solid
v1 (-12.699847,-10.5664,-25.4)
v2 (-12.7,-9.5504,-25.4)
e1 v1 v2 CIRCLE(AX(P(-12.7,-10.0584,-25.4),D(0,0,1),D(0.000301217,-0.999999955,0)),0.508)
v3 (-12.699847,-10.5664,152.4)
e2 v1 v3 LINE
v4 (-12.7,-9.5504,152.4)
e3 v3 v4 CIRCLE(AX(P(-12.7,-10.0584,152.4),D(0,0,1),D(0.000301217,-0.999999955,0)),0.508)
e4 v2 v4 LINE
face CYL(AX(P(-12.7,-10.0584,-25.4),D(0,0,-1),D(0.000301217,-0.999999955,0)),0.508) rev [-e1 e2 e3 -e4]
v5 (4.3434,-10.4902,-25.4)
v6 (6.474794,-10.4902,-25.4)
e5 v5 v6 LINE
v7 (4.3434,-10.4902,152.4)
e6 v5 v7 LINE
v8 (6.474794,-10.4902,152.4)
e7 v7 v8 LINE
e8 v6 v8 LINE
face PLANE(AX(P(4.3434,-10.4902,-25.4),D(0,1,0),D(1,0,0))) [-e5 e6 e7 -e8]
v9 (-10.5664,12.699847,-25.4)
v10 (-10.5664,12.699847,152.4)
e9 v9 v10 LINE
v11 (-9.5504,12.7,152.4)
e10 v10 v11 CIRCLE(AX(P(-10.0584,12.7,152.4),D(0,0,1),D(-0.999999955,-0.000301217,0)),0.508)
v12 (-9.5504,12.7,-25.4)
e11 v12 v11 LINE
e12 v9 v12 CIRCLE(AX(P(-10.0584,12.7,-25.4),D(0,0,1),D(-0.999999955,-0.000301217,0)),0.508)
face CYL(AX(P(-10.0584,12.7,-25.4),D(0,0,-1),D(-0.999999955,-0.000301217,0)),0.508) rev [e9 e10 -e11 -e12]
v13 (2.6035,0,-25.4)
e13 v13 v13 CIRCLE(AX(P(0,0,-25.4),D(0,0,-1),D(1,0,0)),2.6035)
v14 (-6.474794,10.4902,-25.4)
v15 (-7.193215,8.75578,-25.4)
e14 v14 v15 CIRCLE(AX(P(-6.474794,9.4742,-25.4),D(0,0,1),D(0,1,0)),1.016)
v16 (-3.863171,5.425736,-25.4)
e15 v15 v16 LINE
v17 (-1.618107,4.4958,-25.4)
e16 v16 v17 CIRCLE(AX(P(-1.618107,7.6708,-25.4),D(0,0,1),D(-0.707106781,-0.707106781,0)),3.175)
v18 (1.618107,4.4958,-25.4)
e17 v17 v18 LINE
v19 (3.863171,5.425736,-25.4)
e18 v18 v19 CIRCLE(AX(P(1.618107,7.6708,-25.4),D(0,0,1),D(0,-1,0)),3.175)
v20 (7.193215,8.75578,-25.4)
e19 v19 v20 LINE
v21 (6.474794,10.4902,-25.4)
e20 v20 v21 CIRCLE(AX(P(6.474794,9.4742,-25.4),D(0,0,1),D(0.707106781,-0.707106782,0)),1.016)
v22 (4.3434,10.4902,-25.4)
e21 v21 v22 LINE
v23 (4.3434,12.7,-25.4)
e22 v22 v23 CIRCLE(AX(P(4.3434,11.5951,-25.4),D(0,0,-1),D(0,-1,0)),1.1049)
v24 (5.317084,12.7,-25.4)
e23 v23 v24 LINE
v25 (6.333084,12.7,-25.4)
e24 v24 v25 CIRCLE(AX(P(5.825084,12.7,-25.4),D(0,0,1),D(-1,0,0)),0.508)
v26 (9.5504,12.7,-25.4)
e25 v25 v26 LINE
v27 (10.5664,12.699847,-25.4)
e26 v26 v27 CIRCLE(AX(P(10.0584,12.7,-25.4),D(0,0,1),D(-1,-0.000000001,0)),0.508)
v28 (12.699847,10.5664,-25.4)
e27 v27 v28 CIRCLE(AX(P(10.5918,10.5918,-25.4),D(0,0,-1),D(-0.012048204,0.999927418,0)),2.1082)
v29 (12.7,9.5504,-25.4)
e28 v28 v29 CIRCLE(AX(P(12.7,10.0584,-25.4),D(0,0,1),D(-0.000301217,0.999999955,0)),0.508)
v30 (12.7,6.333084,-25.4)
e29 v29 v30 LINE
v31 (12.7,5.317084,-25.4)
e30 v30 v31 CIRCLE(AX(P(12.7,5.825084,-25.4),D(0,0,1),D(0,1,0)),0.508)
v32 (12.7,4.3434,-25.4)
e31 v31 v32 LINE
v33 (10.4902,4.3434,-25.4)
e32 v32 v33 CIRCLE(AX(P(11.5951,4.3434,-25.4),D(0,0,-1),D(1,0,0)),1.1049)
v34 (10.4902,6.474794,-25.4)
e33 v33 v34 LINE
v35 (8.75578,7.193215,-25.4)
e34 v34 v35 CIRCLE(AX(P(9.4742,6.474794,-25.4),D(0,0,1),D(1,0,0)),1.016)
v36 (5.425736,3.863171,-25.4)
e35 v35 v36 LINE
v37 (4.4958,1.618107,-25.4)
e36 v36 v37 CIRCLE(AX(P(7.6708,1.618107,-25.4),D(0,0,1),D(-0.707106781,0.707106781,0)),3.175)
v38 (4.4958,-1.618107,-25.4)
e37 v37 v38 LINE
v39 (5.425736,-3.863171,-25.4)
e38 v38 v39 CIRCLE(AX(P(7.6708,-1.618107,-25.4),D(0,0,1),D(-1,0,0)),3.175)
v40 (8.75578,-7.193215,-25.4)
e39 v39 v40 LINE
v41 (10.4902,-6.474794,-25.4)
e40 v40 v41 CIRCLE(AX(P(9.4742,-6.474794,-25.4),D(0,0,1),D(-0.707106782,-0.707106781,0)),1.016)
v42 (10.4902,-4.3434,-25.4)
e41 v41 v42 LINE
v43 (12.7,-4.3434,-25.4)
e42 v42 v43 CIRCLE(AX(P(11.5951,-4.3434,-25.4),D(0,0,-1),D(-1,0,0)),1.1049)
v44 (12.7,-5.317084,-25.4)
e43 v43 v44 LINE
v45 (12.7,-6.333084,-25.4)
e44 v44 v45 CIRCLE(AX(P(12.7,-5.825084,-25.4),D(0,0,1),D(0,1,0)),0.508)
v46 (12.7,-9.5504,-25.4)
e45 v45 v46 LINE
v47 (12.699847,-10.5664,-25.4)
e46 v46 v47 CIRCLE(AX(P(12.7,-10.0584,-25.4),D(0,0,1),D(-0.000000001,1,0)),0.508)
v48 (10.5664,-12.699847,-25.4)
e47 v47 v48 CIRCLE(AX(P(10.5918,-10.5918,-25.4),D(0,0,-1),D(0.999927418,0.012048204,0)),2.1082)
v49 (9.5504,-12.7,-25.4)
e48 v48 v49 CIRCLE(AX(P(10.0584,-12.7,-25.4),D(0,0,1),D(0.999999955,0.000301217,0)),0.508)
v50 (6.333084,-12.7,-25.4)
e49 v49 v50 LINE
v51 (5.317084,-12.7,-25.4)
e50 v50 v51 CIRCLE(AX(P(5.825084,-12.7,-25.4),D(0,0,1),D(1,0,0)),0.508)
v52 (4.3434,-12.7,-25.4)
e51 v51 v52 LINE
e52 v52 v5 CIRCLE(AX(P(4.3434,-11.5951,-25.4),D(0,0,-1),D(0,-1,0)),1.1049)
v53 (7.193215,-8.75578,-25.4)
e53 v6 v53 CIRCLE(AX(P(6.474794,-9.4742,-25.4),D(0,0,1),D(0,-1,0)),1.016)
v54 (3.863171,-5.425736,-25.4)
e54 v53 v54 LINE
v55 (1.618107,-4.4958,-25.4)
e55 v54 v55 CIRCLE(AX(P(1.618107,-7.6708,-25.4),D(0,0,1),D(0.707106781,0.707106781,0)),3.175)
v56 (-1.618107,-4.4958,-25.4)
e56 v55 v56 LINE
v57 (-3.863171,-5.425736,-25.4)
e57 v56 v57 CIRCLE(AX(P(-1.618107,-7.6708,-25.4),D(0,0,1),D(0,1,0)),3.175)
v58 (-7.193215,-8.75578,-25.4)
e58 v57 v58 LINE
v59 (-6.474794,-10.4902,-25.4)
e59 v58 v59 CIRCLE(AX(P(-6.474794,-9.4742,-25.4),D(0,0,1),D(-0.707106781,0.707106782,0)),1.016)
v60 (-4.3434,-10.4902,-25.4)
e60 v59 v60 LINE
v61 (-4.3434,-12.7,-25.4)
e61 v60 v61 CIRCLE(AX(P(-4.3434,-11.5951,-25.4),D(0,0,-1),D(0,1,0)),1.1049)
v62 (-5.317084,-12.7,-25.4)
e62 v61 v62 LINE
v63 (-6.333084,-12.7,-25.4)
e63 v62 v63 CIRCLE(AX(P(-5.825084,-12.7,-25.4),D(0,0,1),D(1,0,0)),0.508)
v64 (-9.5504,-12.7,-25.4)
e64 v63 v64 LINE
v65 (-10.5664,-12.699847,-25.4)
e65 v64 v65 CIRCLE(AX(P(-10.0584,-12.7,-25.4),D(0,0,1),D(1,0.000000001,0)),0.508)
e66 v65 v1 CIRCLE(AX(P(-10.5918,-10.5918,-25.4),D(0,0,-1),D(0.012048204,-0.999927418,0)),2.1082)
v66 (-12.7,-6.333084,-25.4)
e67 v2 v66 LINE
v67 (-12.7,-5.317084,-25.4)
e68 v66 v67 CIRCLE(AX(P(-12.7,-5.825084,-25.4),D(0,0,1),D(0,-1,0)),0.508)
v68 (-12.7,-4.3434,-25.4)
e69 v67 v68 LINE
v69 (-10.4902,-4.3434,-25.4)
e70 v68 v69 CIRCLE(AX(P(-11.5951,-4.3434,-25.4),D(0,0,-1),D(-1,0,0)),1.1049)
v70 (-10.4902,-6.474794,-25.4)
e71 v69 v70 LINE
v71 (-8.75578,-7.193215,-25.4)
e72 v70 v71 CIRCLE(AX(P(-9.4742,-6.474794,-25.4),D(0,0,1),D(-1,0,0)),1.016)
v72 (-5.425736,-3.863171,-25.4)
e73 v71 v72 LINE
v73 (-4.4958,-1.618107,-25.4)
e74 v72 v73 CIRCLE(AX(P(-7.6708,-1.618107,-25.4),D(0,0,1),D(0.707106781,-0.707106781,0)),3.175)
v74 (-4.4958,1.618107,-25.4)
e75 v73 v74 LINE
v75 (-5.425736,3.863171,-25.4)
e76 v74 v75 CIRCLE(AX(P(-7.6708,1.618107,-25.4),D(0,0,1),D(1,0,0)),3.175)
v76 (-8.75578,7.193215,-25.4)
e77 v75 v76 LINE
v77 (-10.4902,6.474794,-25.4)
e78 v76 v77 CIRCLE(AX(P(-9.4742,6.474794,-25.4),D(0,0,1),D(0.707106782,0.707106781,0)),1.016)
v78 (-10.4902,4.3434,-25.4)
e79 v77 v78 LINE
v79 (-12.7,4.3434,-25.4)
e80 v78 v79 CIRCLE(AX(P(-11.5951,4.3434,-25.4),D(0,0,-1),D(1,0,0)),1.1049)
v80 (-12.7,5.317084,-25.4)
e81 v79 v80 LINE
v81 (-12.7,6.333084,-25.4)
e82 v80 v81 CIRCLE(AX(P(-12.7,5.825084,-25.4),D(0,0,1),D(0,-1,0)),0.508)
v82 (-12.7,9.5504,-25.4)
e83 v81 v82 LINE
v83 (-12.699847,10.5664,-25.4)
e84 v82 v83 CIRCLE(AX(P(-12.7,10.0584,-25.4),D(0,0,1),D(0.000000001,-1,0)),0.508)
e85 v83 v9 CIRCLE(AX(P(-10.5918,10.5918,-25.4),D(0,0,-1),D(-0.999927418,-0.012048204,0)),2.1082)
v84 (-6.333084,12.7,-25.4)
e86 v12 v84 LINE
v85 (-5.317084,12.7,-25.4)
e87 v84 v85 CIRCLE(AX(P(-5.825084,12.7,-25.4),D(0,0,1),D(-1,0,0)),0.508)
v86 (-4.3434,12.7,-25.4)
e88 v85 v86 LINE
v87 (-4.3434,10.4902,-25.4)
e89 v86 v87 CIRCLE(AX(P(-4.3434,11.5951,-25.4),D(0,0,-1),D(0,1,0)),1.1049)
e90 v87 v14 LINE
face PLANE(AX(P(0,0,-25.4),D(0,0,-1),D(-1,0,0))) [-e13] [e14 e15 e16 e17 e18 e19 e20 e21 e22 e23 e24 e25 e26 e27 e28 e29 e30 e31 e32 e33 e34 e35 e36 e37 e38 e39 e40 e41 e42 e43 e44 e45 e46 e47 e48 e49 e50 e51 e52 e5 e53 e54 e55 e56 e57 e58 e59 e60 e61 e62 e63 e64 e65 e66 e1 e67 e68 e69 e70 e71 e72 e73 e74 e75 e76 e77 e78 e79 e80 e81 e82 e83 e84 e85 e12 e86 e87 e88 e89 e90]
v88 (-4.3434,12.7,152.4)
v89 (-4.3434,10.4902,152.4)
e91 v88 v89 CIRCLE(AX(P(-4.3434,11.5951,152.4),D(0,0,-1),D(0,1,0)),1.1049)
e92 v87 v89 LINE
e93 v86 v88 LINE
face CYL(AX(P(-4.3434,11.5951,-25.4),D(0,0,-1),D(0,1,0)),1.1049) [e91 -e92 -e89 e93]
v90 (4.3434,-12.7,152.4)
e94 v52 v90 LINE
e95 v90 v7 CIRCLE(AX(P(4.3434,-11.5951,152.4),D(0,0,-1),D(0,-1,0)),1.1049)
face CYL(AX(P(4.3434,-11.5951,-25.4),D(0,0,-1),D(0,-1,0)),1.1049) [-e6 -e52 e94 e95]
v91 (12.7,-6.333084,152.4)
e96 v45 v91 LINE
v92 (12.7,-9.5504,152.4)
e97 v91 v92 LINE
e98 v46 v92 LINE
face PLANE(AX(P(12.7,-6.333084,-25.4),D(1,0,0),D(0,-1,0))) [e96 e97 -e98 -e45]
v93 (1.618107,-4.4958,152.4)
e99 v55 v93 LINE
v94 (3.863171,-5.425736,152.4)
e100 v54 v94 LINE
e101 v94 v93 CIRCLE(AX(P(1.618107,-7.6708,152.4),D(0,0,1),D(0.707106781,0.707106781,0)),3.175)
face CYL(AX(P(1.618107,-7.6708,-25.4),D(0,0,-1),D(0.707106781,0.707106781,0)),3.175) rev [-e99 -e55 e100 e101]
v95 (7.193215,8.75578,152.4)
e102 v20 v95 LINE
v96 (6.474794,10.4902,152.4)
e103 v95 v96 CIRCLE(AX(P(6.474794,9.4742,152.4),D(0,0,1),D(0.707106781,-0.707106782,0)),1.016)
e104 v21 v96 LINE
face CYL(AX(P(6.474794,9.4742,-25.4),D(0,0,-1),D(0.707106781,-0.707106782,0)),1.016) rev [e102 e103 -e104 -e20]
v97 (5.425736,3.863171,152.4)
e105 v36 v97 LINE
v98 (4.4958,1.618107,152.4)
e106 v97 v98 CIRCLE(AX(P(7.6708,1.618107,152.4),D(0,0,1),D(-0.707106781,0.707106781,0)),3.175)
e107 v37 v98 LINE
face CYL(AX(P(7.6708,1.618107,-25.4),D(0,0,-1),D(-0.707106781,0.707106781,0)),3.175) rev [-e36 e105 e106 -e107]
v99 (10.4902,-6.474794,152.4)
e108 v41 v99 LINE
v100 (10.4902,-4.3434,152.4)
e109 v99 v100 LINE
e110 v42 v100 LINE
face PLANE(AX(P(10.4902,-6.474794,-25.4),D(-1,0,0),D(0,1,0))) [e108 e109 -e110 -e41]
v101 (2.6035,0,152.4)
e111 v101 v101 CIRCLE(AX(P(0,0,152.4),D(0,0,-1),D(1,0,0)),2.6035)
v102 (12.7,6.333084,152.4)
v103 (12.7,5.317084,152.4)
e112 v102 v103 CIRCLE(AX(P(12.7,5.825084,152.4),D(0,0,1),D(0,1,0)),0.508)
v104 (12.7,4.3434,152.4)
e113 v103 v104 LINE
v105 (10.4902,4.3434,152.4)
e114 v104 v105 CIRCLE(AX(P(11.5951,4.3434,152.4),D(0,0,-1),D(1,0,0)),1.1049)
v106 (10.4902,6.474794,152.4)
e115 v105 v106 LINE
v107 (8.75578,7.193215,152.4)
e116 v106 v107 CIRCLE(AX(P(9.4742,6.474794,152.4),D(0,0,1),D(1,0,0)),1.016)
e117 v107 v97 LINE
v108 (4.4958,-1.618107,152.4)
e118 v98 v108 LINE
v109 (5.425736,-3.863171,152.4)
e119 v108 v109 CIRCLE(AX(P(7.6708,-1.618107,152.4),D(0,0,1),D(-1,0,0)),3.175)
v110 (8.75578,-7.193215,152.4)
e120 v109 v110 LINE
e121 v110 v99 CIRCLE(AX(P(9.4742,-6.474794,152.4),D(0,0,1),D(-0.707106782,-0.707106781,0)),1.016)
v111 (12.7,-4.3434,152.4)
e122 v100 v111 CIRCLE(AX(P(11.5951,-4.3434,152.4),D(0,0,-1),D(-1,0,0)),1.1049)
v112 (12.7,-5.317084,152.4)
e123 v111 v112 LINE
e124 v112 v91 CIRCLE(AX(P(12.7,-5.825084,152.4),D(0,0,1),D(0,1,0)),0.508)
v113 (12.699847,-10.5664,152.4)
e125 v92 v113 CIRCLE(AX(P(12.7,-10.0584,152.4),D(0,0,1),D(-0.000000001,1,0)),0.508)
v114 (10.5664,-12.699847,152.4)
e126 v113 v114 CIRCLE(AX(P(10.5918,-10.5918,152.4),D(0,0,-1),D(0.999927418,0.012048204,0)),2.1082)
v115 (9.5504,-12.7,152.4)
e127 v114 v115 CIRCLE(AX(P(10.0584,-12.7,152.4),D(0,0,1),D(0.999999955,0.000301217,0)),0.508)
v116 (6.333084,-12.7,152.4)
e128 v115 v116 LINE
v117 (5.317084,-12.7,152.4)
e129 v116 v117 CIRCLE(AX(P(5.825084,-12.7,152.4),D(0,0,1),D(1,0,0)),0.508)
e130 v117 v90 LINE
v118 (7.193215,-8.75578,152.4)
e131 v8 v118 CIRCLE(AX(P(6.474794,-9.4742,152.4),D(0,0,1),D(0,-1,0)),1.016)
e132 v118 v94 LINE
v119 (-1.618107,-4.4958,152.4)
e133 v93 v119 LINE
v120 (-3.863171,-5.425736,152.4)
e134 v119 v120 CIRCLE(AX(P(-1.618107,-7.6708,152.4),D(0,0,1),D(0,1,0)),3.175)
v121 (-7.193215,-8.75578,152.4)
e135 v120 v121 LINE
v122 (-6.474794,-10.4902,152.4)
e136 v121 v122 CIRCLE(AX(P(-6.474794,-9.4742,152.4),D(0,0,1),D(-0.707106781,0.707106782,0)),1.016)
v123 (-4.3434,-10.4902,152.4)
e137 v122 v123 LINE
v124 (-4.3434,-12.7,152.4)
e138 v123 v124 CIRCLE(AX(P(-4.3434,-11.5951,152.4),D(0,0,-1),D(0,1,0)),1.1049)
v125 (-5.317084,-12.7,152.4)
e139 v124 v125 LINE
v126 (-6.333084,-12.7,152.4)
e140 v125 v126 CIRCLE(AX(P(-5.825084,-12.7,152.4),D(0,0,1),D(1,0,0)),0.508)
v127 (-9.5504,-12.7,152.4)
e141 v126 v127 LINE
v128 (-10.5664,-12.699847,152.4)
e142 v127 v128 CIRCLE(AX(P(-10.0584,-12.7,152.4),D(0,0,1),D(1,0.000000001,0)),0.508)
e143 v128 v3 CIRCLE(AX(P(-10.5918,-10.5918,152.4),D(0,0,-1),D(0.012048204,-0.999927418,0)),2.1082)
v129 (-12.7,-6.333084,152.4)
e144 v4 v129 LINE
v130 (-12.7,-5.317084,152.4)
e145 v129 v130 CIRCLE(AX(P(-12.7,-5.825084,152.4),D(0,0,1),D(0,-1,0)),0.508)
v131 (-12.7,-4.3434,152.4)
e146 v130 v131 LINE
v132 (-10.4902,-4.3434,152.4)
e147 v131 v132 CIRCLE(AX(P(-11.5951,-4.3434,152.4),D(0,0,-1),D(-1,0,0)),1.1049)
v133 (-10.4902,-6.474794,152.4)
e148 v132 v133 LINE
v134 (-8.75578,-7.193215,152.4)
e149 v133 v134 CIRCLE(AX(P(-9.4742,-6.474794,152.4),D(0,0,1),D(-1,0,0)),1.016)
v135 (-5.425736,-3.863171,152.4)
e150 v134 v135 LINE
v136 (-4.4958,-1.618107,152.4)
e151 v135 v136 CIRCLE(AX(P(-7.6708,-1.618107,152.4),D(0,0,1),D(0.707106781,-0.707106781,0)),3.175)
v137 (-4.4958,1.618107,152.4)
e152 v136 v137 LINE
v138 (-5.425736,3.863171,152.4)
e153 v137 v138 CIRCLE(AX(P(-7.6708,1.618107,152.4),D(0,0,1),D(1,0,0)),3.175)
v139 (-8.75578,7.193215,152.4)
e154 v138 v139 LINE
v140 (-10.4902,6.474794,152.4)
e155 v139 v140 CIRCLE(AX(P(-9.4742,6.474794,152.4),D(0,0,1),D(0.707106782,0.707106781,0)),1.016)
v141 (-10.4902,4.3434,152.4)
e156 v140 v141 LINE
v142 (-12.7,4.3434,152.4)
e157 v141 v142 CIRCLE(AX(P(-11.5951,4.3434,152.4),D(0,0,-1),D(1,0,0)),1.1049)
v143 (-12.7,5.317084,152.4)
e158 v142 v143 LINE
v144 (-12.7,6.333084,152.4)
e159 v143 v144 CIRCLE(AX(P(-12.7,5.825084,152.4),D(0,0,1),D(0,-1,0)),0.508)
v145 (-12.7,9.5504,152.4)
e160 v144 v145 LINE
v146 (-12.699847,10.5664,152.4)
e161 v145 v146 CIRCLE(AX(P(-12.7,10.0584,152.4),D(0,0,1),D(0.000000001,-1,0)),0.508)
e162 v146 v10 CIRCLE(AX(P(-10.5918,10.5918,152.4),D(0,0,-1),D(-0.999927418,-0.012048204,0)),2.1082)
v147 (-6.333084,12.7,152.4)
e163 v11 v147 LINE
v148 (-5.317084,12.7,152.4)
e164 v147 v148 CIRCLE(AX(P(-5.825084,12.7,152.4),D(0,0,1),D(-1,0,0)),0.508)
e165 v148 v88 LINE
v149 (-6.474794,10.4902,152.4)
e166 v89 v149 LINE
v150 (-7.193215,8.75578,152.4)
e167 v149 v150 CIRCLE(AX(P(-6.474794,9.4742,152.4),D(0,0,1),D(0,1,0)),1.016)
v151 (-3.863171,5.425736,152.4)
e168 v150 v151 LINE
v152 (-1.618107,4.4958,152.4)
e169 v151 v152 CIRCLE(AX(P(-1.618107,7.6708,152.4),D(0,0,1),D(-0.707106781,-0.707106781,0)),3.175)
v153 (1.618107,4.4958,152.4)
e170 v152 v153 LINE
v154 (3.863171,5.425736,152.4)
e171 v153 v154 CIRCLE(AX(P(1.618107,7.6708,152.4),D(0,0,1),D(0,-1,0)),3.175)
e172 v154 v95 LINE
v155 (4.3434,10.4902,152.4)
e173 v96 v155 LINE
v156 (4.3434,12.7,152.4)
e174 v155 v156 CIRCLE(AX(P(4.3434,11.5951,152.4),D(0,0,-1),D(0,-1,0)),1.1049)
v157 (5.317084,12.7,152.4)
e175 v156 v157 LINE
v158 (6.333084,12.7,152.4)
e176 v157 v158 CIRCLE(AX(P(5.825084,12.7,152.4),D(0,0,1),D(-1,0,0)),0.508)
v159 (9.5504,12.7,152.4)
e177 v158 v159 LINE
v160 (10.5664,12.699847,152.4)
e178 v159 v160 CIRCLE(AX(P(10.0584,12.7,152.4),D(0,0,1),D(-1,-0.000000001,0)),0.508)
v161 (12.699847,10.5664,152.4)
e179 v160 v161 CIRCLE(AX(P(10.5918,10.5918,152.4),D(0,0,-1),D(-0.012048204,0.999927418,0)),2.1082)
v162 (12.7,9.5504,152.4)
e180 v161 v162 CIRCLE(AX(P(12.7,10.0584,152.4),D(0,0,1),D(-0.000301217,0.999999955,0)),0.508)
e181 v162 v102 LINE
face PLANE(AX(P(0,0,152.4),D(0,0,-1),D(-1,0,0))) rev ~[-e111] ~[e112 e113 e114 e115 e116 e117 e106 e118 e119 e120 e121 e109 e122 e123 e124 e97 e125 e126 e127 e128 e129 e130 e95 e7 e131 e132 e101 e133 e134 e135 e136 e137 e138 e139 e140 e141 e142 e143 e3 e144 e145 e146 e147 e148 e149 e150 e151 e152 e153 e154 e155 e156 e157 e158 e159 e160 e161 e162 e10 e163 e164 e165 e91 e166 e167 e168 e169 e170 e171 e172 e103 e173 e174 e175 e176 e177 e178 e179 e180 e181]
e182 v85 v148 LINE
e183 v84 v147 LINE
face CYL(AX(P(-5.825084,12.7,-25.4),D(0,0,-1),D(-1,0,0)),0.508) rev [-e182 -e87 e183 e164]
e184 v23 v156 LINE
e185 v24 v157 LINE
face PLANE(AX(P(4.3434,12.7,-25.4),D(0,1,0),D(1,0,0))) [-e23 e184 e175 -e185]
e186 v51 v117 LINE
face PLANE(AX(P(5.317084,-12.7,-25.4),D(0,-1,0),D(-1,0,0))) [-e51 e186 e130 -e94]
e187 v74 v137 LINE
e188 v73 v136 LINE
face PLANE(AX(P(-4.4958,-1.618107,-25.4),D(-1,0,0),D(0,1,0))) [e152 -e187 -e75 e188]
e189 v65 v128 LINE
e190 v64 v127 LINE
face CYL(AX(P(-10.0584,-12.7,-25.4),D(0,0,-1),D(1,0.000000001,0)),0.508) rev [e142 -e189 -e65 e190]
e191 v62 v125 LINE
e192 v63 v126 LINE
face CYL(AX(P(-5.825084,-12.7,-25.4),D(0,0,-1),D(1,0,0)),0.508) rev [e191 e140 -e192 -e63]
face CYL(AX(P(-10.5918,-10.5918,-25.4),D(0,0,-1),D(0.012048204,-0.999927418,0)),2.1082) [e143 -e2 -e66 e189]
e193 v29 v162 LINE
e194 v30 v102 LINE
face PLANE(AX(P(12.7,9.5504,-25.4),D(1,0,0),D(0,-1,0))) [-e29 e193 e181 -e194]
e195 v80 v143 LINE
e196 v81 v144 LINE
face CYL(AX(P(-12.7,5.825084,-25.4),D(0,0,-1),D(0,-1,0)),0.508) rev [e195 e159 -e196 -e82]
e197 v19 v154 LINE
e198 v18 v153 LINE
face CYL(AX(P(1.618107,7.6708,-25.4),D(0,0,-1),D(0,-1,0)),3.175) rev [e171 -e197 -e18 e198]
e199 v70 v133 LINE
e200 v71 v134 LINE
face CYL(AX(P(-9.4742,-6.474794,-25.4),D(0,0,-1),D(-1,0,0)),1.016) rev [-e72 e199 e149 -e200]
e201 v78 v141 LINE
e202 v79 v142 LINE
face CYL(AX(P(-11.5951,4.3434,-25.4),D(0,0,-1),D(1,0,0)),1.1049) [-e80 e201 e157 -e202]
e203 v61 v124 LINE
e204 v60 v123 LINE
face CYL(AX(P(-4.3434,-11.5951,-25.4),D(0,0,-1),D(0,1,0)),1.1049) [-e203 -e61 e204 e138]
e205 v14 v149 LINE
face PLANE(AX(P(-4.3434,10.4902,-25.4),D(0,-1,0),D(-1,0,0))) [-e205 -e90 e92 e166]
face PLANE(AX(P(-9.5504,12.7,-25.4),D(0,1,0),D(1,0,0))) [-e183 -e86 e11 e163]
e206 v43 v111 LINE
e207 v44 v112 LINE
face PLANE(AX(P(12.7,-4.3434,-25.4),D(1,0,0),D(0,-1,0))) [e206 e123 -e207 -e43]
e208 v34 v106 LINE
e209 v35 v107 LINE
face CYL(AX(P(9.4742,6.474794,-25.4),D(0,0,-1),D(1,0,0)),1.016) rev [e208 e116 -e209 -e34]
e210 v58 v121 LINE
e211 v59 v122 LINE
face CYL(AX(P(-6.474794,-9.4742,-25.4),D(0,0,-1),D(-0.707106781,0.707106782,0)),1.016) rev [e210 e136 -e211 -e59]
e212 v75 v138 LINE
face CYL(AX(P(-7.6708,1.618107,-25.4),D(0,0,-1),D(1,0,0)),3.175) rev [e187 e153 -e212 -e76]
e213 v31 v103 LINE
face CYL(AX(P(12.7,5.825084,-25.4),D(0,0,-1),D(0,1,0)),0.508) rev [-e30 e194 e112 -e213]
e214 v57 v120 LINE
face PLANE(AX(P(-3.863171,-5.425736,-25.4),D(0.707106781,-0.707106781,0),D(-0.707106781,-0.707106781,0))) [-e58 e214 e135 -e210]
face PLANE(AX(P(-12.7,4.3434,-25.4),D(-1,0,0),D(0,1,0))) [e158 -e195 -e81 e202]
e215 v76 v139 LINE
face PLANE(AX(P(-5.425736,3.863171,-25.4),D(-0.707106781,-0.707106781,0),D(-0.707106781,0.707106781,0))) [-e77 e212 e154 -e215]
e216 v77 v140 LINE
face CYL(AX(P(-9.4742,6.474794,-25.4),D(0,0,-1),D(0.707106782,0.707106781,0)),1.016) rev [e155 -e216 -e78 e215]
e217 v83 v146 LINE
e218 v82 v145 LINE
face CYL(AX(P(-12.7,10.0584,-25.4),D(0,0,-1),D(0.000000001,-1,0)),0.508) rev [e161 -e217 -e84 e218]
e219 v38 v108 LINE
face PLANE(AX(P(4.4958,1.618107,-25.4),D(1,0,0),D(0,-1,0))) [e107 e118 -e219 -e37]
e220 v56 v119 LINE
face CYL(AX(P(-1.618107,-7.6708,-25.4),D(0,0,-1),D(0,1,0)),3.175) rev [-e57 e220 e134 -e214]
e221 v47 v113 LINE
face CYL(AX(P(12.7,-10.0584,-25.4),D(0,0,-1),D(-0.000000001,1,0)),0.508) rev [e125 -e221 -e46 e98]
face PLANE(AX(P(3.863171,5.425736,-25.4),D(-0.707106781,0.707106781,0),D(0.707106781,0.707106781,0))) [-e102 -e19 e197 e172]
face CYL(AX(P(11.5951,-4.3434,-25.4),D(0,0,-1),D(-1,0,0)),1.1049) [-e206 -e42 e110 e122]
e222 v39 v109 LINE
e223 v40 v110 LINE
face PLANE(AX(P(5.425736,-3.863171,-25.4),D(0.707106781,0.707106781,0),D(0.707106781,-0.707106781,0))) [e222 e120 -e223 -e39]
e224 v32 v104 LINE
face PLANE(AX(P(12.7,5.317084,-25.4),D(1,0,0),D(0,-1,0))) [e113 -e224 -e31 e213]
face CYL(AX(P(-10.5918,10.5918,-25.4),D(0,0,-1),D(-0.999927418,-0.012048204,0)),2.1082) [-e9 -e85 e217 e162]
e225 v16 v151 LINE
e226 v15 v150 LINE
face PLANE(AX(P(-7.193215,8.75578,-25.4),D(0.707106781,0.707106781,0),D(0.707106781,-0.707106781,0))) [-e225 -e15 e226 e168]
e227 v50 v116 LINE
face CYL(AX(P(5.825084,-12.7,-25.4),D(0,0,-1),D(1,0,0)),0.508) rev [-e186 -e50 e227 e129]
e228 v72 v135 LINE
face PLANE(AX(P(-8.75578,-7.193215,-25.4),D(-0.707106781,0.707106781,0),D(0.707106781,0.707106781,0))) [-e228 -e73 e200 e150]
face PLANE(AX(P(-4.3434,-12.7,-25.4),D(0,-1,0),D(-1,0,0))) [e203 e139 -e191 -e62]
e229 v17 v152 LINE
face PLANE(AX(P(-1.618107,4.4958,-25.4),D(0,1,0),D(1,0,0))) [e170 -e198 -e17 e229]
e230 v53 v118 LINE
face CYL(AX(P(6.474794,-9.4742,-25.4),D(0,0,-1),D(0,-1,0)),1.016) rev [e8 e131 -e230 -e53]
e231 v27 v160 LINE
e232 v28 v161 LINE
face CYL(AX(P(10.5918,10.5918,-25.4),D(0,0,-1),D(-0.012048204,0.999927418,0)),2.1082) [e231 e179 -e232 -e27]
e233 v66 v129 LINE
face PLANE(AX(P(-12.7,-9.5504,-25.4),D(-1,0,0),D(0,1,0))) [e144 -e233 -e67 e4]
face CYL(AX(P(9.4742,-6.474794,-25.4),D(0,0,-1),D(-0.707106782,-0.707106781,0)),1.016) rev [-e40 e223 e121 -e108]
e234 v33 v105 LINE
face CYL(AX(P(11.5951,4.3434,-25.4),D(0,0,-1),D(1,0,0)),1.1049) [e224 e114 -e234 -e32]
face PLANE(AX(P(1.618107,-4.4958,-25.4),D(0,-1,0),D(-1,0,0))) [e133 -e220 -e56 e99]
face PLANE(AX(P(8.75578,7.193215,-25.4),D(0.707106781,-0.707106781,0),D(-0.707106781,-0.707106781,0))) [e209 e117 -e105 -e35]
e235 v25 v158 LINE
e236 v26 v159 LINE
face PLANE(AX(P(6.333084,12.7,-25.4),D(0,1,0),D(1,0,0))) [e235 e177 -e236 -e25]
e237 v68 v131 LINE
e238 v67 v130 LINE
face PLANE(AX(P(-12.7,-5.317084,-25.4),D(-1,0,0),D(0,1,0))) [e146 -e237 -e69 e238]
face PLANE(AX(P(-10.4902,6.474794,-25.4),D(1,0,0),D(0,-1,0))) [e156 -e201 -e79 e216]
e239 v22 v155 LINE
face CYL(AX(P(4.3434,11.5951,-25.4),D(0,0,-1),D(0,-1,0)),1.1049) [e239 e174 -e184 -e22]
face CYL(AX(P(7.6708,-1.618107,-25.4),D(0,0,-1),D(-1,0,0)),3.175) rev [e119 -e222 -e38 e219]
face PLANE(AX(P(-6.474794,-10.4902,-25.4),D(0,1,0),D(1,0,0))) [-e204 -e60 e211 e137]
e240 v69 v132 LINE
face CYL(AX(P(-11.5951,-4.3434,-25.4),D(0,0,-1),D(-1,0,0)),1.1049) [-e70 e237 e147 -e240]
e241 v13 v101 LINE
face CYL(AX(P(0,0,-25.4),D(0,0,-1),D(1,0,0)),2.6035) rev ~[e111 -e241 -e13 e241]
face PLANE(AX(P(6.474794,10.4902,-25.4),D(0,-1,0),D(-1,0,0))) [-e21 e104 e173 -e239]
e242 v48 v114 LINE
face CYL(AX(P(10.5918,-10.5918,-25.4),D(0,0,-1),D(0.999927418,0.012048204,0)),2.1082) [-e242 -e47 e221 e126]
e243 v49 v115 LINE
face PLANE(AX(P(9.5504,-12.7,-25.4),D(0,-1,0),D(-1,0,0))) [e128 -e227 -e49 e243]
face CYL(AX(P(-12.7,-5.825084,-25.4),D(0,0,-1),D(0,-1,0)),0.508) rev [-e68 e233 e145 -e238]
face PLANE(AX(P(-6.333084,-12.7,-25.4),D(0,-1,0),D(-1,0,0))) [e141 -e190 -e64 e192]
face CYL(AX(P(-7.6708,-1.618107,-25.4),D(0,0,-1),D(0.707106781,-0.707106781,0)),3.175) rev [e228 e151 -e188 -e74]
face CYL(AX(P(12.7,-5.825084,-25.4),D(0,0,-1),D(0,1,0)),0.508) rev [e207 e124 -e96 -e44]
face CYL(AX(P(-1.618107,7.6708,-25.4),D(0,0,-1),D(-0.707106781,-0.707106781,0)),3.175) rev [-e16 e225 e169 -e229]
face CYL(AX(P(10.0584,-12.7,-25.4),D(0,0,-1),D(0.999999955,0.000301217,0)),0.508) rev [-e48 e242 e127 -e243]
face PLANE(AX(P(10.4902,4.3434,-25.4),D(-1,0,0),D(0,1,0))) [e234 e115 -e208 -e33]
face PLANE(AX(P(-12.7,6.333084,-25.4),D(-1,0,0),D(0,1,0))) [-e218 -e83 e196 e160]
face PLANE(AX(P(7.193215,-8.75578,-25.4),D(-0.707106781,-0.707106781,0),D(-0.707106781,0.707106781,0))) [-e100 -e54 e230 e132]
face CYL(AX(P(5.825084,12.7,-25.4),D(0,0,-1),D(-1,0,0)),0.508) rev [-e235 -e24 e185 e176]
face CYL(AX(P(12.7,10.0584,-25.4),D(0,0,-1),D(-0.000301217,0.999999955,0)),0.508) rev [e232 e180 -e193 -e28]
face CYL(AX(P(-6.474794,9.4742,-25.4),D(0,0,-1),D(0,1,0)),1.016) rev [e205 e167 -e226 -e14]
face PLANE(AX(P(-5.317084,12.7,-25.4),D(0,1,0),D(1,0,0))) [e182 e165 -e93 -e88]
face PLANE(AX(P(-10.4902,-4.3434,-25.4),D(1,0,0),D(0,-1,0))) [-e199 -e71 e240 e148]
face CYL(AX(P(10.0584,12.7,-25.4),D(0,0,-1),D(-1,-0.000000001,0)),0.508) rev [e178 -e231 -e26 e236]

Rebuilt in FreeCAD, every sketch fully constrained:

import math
import FreeCAD as App
import Part
import Sketcher
from FreeCAD import Vector
Q = App.Units.Quantity

doc = App.newDocument("Part")
body = doc.addObject("PartDesign::Body", "Body")

# Sketch on XY plane
sketch1 = body.newObject("Sketcher::SketchObject", "Sketch")
sketch1.AttachmentSupport = (doc.getObject("XY_Plane"), [""])
sketch1.MapMode = "FlatFace"
sketch1.AttachmentOffset = App.Placement(Vector(0, 0, -1 * 25.4), App.Rotation())
sketch1.addGeometry(Part.LineSegment(Vector(-12.7, -9.5504, 0), Vector(-12.7, -6.333084, 0)), False)
sketch1.addGeometry(Part.ArcOfCircle(Part.Circle(Vector(-12.7, -5.825084, 0), Vector(0, 0, 1), 0.508), math.radians(-90), math.radians(90)), False)
sketch1.addGeometry(Part.LineSegment(Vector(-12.7, -5.317084, 0), Vector(-12.7, -4.3434, 0)), False)
sketch1.addGeometry(Part.ArcOfCircle(Part.Circle(Vector(-11.5951, -4.3434, 0), Vector(0, 0, 1), 1.1049), math.radians(0), math.radians(180)), False)
sketch1.addGeometry(Part.LineSegment(Vector(-10.4902, -4.3434, 0), Vector(-10.4902, -6.474794, 0)), False)
sketch1.addGeometry(Part.ArcOfCircle(Part.Circle(Vector(-9.4742, -6.474794, 0), Vector(0, 0, 1), 1.016), math.radians(180), math.radians(315)), False)
sketch1.addGeometry(Part.LineSegment(Vector(-8.75578, -7.193215, 0), Vector(-5.425736, -3.863171, 0)), False)
sketch1.addGeometry(Part.ArcOfCircle(Part.Circle(Vector(-7.6708, -1.618107, 0), Vector(0, 0, 1), 3.175), math.radians(-45), math.radians(0)), False)
sketch1.addGeometry(Part.LineSegment(Vector(-4.4958, -1.618107, 0), Vector(-4.4958, 1.618107, 0)), False)
sketch1.addGeometry(Part.ArcOfCircle(Part.Circle(Vector(-7.6708, 1.618107, 0), Vector(0, 0, 1), 3.175), math.radians(0), math.radians(45)), False)
sketch1.addGeometry(Part.LineSegment(Vector(-5.425736, 3.863171, 0), Vector(-8.75578, 7.193215, 0)), False)
sketch1.addGeometry(Part.ArcOfCircle(Part.Circle(Vector(-9.4742, 6.474794, 0), Vector(0, 0, 1), 1.016), math.radians(45), math.radians(180)), False)
sketch1.addGeometry(Part.LineSegment(Vector(-10.4902, 6.474794, 0), Vector(-10.4902, 4.3434, 0)), False)
sketch1.addGeometry(Part.ArcOfCircle(Part.Circle(Vector(-11.5951, 4.3434, 0), Vector(0, 0, 1), 1.1049), math.radians(180), math.radians(360)), False)
sketch1.addGeometry(Part.LineSegment(Vector(-12.7, 4.3434, 0), Vector(-12.7, 5.317084, 0)), False)
sketch1.addGeometry(Part.ArcOfCircle(Part.Circle(Vector(-12.7, 5.825084, 0), Vector(0, 0, 1), 0.508), math.radians(-90), math.radians(90)), False)
sketch1.addGeometry(Part.LineSegment(Vector(-12.7, 6.333084, 0), Vector(-12.7, 9.5504, 0)), False)
sketch1.addGeometry(Part.ArcOfCircle(Part.Circle(Vector(-12.7, 10.0584, 0), Vector(0, 0, 1), 0.508), math.radians(-90), math.radians(89.982742)), False)
sketch1.addGeometry(Part.ArcOfCircle(Part.Circle(Vector(-10.5918, 10.5918, 0), Vector(0, 0, 1), 2.1082), math.radians(89.309672), math.radians(180.690328)), False)
sketch1.addGeometry(Part.ArcOfCircle(Part.Circle(Vector(-10.0584, 12.7, 0), Vector(0, 0, 1), 0.508), math.radians(-179.982742), math.radians(0)), False)
sketch1.addGeometry(Part.LineSegment(Vector(-9.5504, 12.7, 0), Vector(-6.333084, 12.7, 0)), False)
sketch1.addGeometry(Part.ArcOfCircle(Part.Circle(Vector(-5.825084, 12.7, 0), Vector(0, 0, 1), 0.508), math.radians(180), math.radians(360)), False)
sketch1.addGeometry(Part.LineSegment(Vector(-5.317084, 12.7, 0), Vector(-4.3434, 12.7, 0)), False)
sketch1.addGeometry(Part.ArcOfCircle(Part.Circle(Vector(-4.3434, 11.5951, 0), Vector(0, 0, 1), 1.1049), math.radians(-90), math.radians(90)), False)
sketch1.addGeometry(Part.LineSegment(Vector(-4.3434, 10.4902, 0), Vector(-6.474794, 10.4902, 0)), False)
sketch1.addGeometry(Part.ArcOfCircle(Part.Circle(Vector(-6.474794, 9.4742, 0), Vector(0, 0, 1), 1.016), math.radians(90), math.radians(225)), False)
sketch1.addGeometry(Part.LineSegment(Vector(-7.193215, 8.75578, 0), Vector(-3.863171, 5.425736, 0)), False)
sketch1.addGeometry(Part.ArcOfCircle(Part.Circle(Vector(-1.618107, 7.6708, 0), Vector(0, 0, 1), 3.175), math.radians(-135), math.radians(-90)), False)
sketch1.addGeometry(Part.LineSegment(Vector(-1.618107, 4.4958, 0), Vector(1.618107, 4.4958, 0)), False)
sketch1.addGeometry(Part.ArcOfCircle(Part.Circle(Vector(1.618107, 7.6708, 0), Vector(0, 0, 1), 3.175), math.radians(-90), math.radians(-45)), False)
sketch1.addGeometry(Part.LineSegment(Vector(3.863171, 5.425736, 0), Vector(7.193215, 8.75578, 0)), False)
sketch1.addGeometry(Part.ArcOfCircle(Part.Circle(Vector(6.474794, 9.4742, 0), Vector(0, 0, 1), 1.016), math.radians(-45), math.radians(90)), False)
sketch1.addGeometry(Part.LineSegment(Vector(6.474794, 10.4902, 0), Vector(4.3434, 10.4902, 0)), False)
sketch1.addGeometry(Part.ArcOfCircle(Part.Circle(Vector(4.3434, 11.5951, 0), Vector(0, 0, 1), 1.1049), math.radians(90), math.radians(270)), False)
sketch1.addGeometry(Part.LineSegment(Vector(4.3434, 12.7, 0), Vector(5.317084, 12.7, 0)), False)
sketch1.addGeometry(Part.ArcOfCircle(Part.Circle(Vector(5.825084, 12.7, 0), Vector(0, 0, 1), 0.508), math.radians(180), math.radians(360)), False)
sketch1.addGeometry(Part.LineSegment(Vector(6.333084, 12.7, 0), Vector(9.5504, 12.7, 0)), False)
sketch1.addGeometry(Part.ArcOfCircle(Part.Circle(Vector(10.0584, 12.7, 0), Vector(0, 0, 1), 0.508), math.radians(180), math.radians(359.982742)), False)
sketch1.addGeometry(Part.ArcOfCircle(Part.Circle(Vector(10.5918, 10.5918, 0), Vector(0, 0, 1), 2.1082), math.radians(-0.690328), math.radians(90.690328)), False)
sketch1.addGeometry(Part.ArcOfCircle(Part.Circle(Vector(12.7, 10.0584, 0), Vector(0, 0, 1), 0.508), math.radians(90.017258), math.radians(270)), False)
sketch1.addGeometry(Part.LineSegment(Vector(12.7, 9.5504, 0), Vector(12.7, 6.333084, 0)), False)
sketch1.addGeometry(Part.ArcOfCircle(Part.Circle(Vector(12.7, 5.825084, 0), Vector(0, 0, 1), 0.508), math.radians(90), math.radians(270)), False)
sketch1.addGeometry(Part.LineSegment(Vector(12.7, 5.317084, 0), Vector(12.7, 4.3434, 0)), False)
sketch1.addGeometry(Part.ArcOfCircle(Part.Circle(Vector(11.5951, 4.3434, 0), Vector(0, 0, 1), 1.1049), math.radians(180), math.radians(360)), False)
sketch1.addGeometry(Part.LineSegment(Vector(10.4902, 4.3434, 0), Vector(10.4902, 6.474794, 0)), False)
sketch1.addGeometry(Part.ArcOfCircle(Part.Circle(Vector(9.4742, 6.474794, 0), Vector(0, 0, 1), 1.016), math.radians(0), math.radians(135)), False)
sketch1.addGeometry(Part.LineSegment(Vector(8.75578, 7.193215, 0), Vector(5.425736, 3.863171, 0)), False)
sketch1.addGeometry(Part.ArcOfCircle(Part.Circle(Vector(7.6708, 1.618107, 0), Vector(0, 0, 1), 3.175), math.radians(135), math.radians(180)), False)
sketch1.addGeometry(Part.LineSegment(Vector(4.4958, 1.618107, 0), Vector(4.4958, -1.618107, 0)), False)
sketch1.addGeometry(Part.ArcOfCircle(Part.Circle(Vector(7.6708, -1.618107, 0), Vector(0, 0, 1), 3.175), math.radians(180), math.radians(225)), False)
sketch1.addGeometry(Part.LineSegment(Vector(5.425736, -3.863171, 0), Vector(8.75578, -7.193215, 0)), False)
sketch1.addGeometry(Part.ArcOfCircle(Part.Circle(Vector(9.4742, -6.474794, 0), Vector(0, 0, 1), 1.016), math.radians(-135), math.radians(0)), False)
sketch1.addGeometry(Part.LineSegment(Vector(10.4902, -6.474794, 0), Vector(10.4902, -4.3434, 0)), False)
sketch1.addGeometry(Part.ArcOfCircle(Part.Circle(Vector(11.5951, -4.3434, 0), Vector(0, 0, 1), 1.1049), math.radians(0), math.radians(180)), False)
sketch1.addGeometry(Part.LineSegment(Vector(12.7, -4.3434, 0), Vector(12.7, -5.317084, 0)), False)
sketch1.addGeometry(Part.ArcOfCircle(Part.Circle(Vector(12.7, -5.825084, 0), Vector(0, 0, 1), 0.508), math.radians(90), math.radians(270)), False)
sketch1.addGeometry(Part.LineSegment(Vector(12.7, -6.333084, 0), Vector(12.7, -9.5504, 0)), False)
sketch1.addGeometry(Part.ArcOfCircle(Part.Circle(Vector(12.7, -10.0584, 0), Vector(0, 0, 1), 0.508), math.radians(90), math.radians(269.982742)), False)
sketch1.addGeometry(Part.ArcOfCircle(Part.Circle(Vector(10.5918, -10.5918, 0), Vector(0, 0, 1), 2.1082), math.radians(-90.690328), math.radians(0.690328)), False)
sketch1.addGeometry(Part.ArcOfCircle(Part.Circle(Vector(10.0584, -12.7, 0), Vector(0, 0, 1), 0.508), math.radians(0.017258), math.radians(180)), False)
sketch1.addGeometry(Part.LineSegment(Vector(9.5504, -12.7, 0), Vector(6.333084, -12.7, 0)), False)
sketch1.addGeometry(Part.ArcOfCircle(Part.Circle(Vector(5.825084, -12.7, 0), Vector(0, 0, 1), 0.508), math.radians(0), math.radians(180)), False)
sketch1.addGeometry(Part.LineSegment(Vector(5.317084, -12.7, 0), Vector(4.3434, -12.7, 0)), False)
sketch1.addGeometry(Part.ArcOfCircle(Part.Circle(Vector(4.3434, -11.5951, 0), Vector(0, 0, 1), 1.1049), math.radians(90), math.radians(270)), False)
sketch1.addGeometry(Part.LineSegment(Vector(4.3434, -10.4902, 0), Vector(6.474794, -10.4902, 0)), False)
sketch1.addGeometry(Part.ArcOfCircle(Part.Circle(Vector(6.474794, -9.4742, 0), Vector(0, 0, 1), 1.016), math.radians(-90), math.radians(45)), False)
sketch1.addGeometry(Part.LineSegment(Vector(7.193215, -8.75578, 0), Vector(3.863171, -5.425736, 0)), False)
sketch1.addGeometry(Part.ArcOfCircle(Part.Circle(Vector(1.618107, -7.6708, 0), Vector(0, 0, 1), 3.175), math.radians(45), math.radians(90)), False)
sketch1.addGeometry(Part.LineSegment(Vector(1.618107, -4.4958, 0), Vector(-1.618107, -4.4958, 0)), False)
sketch1.addGeometry(Part.ArcOfCircle(Part.Circle(Vector(-1.618107, -7.6708, 0), Vector(0, 0, 1), 3.175), math.radians(90), math.radians(135)), False)
sketch1.addGeometry(Part.LineSegment(Vector(-3.863171, -5.425736, 0), Vector(-7.193215, -8.75578, 0)), False)
sketch1.addGeometry(Part.ArcOfCircle(Part.Circle(Vector(-6.474794, -9.4742, 0), Vector(0, 0, 1), 1.016), math.radians(135), math.radians(270)), False)
sketch1.addGeometry(Part.LineSegment(Vector(-6.474794, -10.4902, 0), Vector(-4.3434, -10.4902, 0)), False)
sketch1.addGeometry(Part.ArcOfCircle(Part.Circle(Vector(-4.3434, -11.5951, 0), Vector(0, 0, 1), 1.1049), math.radians(-90), math.radians(90)), False)
sketch1.addGeometry(Part.LineSegment(Vector(-4.3434, -12.7, 0), Vector(-5.317084, -12.7, 0)), False)
sketch1.addGeometry(Part.ArcOfCircle(Part.Circle(Vector(-5.825084, -12.7, 0), Vector(0, 0, 1), 0.508), math.radians(0), math.radians(180)), False)
sketch1.addGeometry(Part.LineSegment(Vector(-6.333084, -12.7, 0), Vector(-9.5504, -12.7, 0)), False)
sketch1.addGeometry(Part.ArcOfCircle(Part.Circle(Vector(-10.0584, -12.7, 0), Vector(0, 0, 1), 0.508), math.radians(0), math.radians(179.982742)), False)
sketch1.addGeometry(Part.ArcOfCircle(Part.Circle(Vector(-10.5918, -10.5918, 0), Vector(0, 0, 1), 2.1082), math.radians(179.309672), math.radians(270.690328)), False)
sketch1.addGeometry(Part.ArcOfCircle(Part.Circle(Vector(-12.7, -10.0584, 0), Vector(0, 0, 1), 0.508), math.radians(-89.982742), math.radians(90)), False)
sketch1.addGeometry(Part.Circle(Vector(0, 0, 0), Vector(0, 0, 1), 2.6035), False)
sketch1.addConstraint(Sketcher.Constraint("Coincident", 0, 2, 1, 1))
sketch1.addConstraint(Sketcher.Constraint("Coincident", 1, 2, 2, 1))
sketch1.addConstraint(Sketcher.Constraint("Tangent", 2, 2, 3, 2))
sketch1.addConstraint(Sketcher.Constraint("Tangent", 3, 1, 4, 1))
sketch1.addConstraint(Sketcher.Constraint("Tangent", 4, 2, 5, 1))
sketch1.addConstraint(Sketcher.Constraint("Tangent", 5, 2, 6, 1))
sketch1.addConstraint(Sketcher.Constraint("Tangent", 6, 2, 7, 1))
sketch1.addConstraint(Sketcher.Constraint("Tangent", 7, 2, 8, 1))
sketch1.addConstraint(Sketcher.Constraint("Tangent", 8, 2, 9, 1))
sketch1.addConstraint(Sketcher.Constraint("Tangent", 9, 2, 10, 1))
sketch1.addConstraint(Sketcher.Constraint("Tangent", 10, 2, 11, 1))
sketch1.addConstraint(Sketcher.Constraint("Tangent", 11, 2, 12, 1))
sketch1.addConstraint(Sketcher.Constraint("Tangent", 12, 2, 13, 2))
sketch1.addConstraint(Sketcher.Constraint("Tangent", 13, 1, 14, 1))
sketch1.addConstraint(Sketcher.Constraint("Coincident", 14, 2, 15, 1))
sketch1.addConstraint(Sketcher.Constraint("Coincident", 15, 2, 16, 1))
sketch1.addConstraint(Sketcher.Constraint("Coincident", 16, 2, 17, 1))
sketch1.addConstraint(Sketcher.Constraint("Coincident", 17, 2, 18, 2))
sketch1.addConstraint(Sketcher.Constraint("Coincident", 18, 1, 19, 1))
sketch1.addConstraint(Sketcher.Constraint("Coincident", 19, 2, 20, 1))
sketch1.addConstraint(Sketcher.Constraint("Coincident", 20, 2, 21, 1))
sketch1.addConstraint(Sketcher.Constraint("Coincident", 21, 2, 22, 1))
sketch1.addConstraint(Sketcher.Constraint("Tangent", 22, 2, 23, 2))
sketch1.addConstraint(Sketcher.Constraint("Tangent", 23, 1, 24, 1))
sketch1.addConstraint(Sketcher.Constraint("Tangent", 24, 2, 25, 1))
sketch1.addConstraint(Sketcher.Constraint("Tangent", 25, 2, 26, 1))
sketch1.addConstraint(Sketcher.Constraint("Tangent", 26, 2, 27, 1))
sketch1.addConstraint(Sketcher.Constraint("Tangent", 27, 2, 28, 1))
sketch1.addConstraint(Sketcher.Constraint("Tangent", 28, 2, 29, 1))
sketch1.addConstraint(Sketcher.Constraint("Tangent", 29, 2, 30, 1))
sketch1.addConstraint(Sketcher.Constraint("Tangent", 30, 2, 31, 1))
sketch1.addConstraint(Sketcher.Constraint("Tangent", 31, 2, 32, 1))
sketch1.addConstraint(Sketcher.Constraint("Tangent", 32, 2, 33, 2))
sketch1.addConstraint(Sketcher.Constraint("Tangent", 33, 1, 34, 1))
sketch1.addConstraint(Sketcher.Constraint("Coincident", 34, 2, 35, 1))
sketch1.addConstraint(Sketcher.Constraint("Coincident", 35, 2, 36, 1))
sketch1.addConstraint(Sketcher.Constraint("Coincident", 36, 2, 37, 1))
sketch1.addConstraint(Sketcher.Constraint("Coincident", 37, 2, 38, 2))
sketch1.addConstraint(Sketcher.Constraint("Coincident", 38, 1, 39, 1))
sketch1.addConstraint(Sketcher.Constraint("Coincident", 39, 2, 40, 1))
sketch1.addConstraint(Sketcher.Constraint("Coincident", 40, 2, 41, 1))
sketch1.addConstraint(Sketcher.Constraint("Coincident", 41, 2, 42, 1))
sketch1.addConstraint(Sketcher.Constraint("Tangent", 42, 2, 43, 2))
sketch1.addConstraint(Sketcher.Constraint("Tangent", 43, 1, 44, 1))
sketch1.addConstraint(Sketcher.Constraint("Tangent", 44, 2, 45, 1))
sketch1.addConstraint(Sketcher.Constraint("Tangent", 45, 2, 46, 1))
sketch1.addConstraint(Sketcher.Constraint("Tangent", 46, 2, 47, 1))
sketch1.addConstraint(Sketcher.Constraint("Tangent", 47, 2, 48, 1))
sketch1.addConstraint(Sketcher.Constraint("Tangent", 48, 2, 49, 1))
sketch1.addConstraint(Sketcher.Constraint("Tangent", 49, 2, 50, 1))
sketch1.addConstraint(Sketcher.Constraint("Tangent", 50, 2, 51, 1))
sketch1.addConstraint(Sketcher.Constraint("Tangent", 51, 2, 52, 1))
sketch1.addConstraint(Sketcher.Constraint("Tangent", 52, 2, 53, 2))
sketch1.addConstraint(Sketcher.Constraint("Tangent", 53, 1, 54, 1))
sketch1.addConstraint(Sketcher.Constraint("Coincident", 54, 2, 55, 1))
sketch1.addConstraint(Sketcher.Constraint("Coincident", 55, 2, 56, 1))
sketch1.addConstraint(Sketcher.Constraint("Coincident", 56, 2, 57, 1))
sketch1.addConstraint(Sketcher.Constraint("Coincident", 57, 2, 58, 2))
sketch1.addConstraint(Sketcher.Constraint("Coincident", 58, 1, 59, 1))
sketch1.addConstraint(Sketcher.Constraint("Coincident", 59, 2, 60, 1))
sketch1.addConstraint(Sketcher.Constraint("Coincident", 60, 2, 61, 1))
sketch1.addConstraint(Sketcher.Constraint("Coincident", 61, 2, 62, 1))
sketch1.addConstraint(Sketcher.Constraint("Tangent", 62, 2, 63, 2))
sketch1.addConstraint(Sketcher.Constraint("Tangent", 63, 1, 64, 1))
sketch1.addConstraint(Sketcher.Constraint("Tangent", 64, 2, 65, 1))
sketch1.addConstraint(Sketcher.Constraint("Tangent", 65, 2, 66, 1))
sketch1.addConstraint(Sketcher.Constraint("Tangent", 66, 2, 67, 1))
sketch1.addConstraint(Sketcher.Constraint("Tangent", 67, 2, 68, 1))
sketch1.addConstraint(Sketcher.Constraint("Tangent", 68, 2, 69, 1))
sketch1.addConstraint(Sketcher.Constraint("Tangent", 69, 2, 70, 1))
sketch1.addConstraint(Sketcher.Constraint("Tangent", 70, 2, 71, 1))
sketch1.addConstraint(Sketcher.Constraint("Tangent", 71, 2, 72, 1))
sketch1.addConstraint(Sketcher.Constraint("Tangent", 72, 2, 73, 2))
sketch1.addConstraint(Sketcher.Constraint("Tangent", 73, 1, 74, 1))
sketch1.addConstraint(Sketcher.Constraint("Coincident", 74, 2, 75, 1))
sketch1.addConstraint(Sketcher.Constraint("Coincident", 75, 2, 76, 1))
sketch1.addConstraint(Sketcher.Constraint("Coincident", 76, 2, 77, 1))
sketch1.addConstraint(Sketcher.Constraint("Coincident", 77, 2, 78, 2))
sketch1.addConstraint(Sketcher.Constraint("Coincident", 78, 1, 79, 1))
sketch1.addConstraint(Sketcher.Constraint("Coincident", 79, 2, 0, 1))
sketch1.addConstraint(Sketcher.Constraint("Vertical", 0))
sketch1.addConstraint(Sketcher.Constraint("Vertical", 2))
sketch1.addConstraint(Sketcher.Constraint("Vertical", 4))
sketch1.addConstraint(Sketcher.Constraint("Vertical", 8))
sketch1.addConstraint(Sketcher.Constraint("Vertical", 12))
sketch1.addConstraint(Sketcher.Constraint("Vertical", 14))
sketch1.addConstraint(Sketcher.Constraint("Vertical", 16))
sketch1.addConstraint(Sketcher.Constraint("Horizontal", 20))
sketch1.addConstraint(Sketcher.Constraint("Horizontal", 22))
sketch1.addConstraint(Sketcher.Constraint("Horizontal", 24))
sketch1.addConstraint(Sketcher.Constraint("Horizontal", 28))
sketch1.addConstraint(Sketcher.Constraint("Horizontal", 32))
sketch1.addConstraint(Sketcher.Constraint("Horizontal", 34))
sketch1.addConstraint(Sketcher.Constraint("Horizontal", 36))
sketch1.addConstraint(Sketcher.Constraint("Vertical", 40))
sketch1.addConstraint(Sketcher.Constraint("Vertical", 42))
sketch1.addConstraint(Sketcher.Constraint("Vertical", 44))
sketch1.addConstraint(Sketcher.Constraint("Vertical", 48))
sketch1.addConstraint(Sketcher.Constraint("Vertical", 52))
sketch1.addConstraint(Sketcher.Constraint("Vertical", 54))
sketch1.addConstraint(Sketcher.Constraint("Vertical", 56))
sketch1.addConstraint(Sketcher.Constraint("Horizontal", 60))
sketch1.addConstraint(Sketcher.Constraint("Horizontal", 62))
sketch1.addConstraint(Sketcher.Constraint("Horizontal", 64))
sketch1.addConstraint(Sketcher.Constraint("Horizontal", 68))
sketch1.addConstraint(Sketcher.Constraint("Horizontal", 72))
sketch1.addConstraint(Sketcher.Constraint("Horizontal", 74))
sketch1.addConstraint(Sketcher.Constraint("Horizontal", 76))
sketch1.addConstraint(Sketcher.Constraint("Coincident", 80, 3, -1, 1))
sketch1.addConstraint(Sketcher.Constraint("Equal", 7, 9))
sketch1.addConstraint(Sketcher.Constraint("Equal", 5, 11))
sketch1.addConstraint(Sketcher.Constraint("Equal", 3, 13))
sketch1.addConstraint(Sketcher.Constraint("Equal", 1, 15))
sketch1.addConstraint(Sketcher.Constraint("Equal", 15, 17))
sketch1.addConstraint(Sketcher.Constraint("Equal", 17, 19))
sketch1.addConstraint(Sketcher.Constraint("Equal", 19, 21))
sketch1.addConstraint(Sketcher.Constraint("Equal", 13, 23))
sketch1.addConstraint(Sketcher.Constraint("Equal", 11, 25))
sketch1.addConstraint(Sketcher.Constraint("Equal", 9, 27))
sketch1.addConstraint(Sketcher.Constraint("Equal", 27, 29))
sketch1.addConstraint(Sketcher.Constraint("Equal", 25, 31))
sketch1.addConstraint(Sketcher.Constraint("Equal", 23, 33))
sketch1.addConstraint(Sketcher.Constraint("Equal", 21, 35))
sketch1.addConstraint(Sketcher.Constraint("Equal", 35, 37))
sketch1.addConstraint(Sketcher.Constraint("Equal", 18, 38))
sketch1.addConstraint(Sketcher.Constraint("Equal", 37, 39))
sketch1.addConstraint(Sketcher.Constraint("Equal", 39, 41))
sketch1.addConstraint(Sketcher.Constraint("Equal", 33, 43))
sketch1.addConstraint(Sketcher.Constraint("Equal", 31, 45))
sketch1.addConstraint(Sketcher.Constraint("Equal", 29, 47))
sketch1.addConstraint(Sketcher.Constraint("Equal", 47, 49))
sketch1.addConstraint(Sketcher.Constraint("Equal", 45, 51))
sketch1.addConstraint(Sketcher.Constraint("Equal", 43, 53))
sketch1.addConstraint(Sketcher.Constraint("Equal", 41, 55))
sketch1.addConstraint(Sketcher.Constraint("Equal", 55, 57))
sketch1.addConstraint(Sketcher.Constraint("Equal", 38, 58))
sketch1.addConstraint(Sketcher.Constraint("Equal", 57, 59))
sketch1.addConstraint(Sketcher.Constraint("Equal", 59, 61))
sketch1.addConstraint(Sketcher.Constraint("Equal", 53, 63))
sketch1.addConstraint(Sketcher.Constraint("Equal", 51, 65))
sketch1.addConstraint(Sketcher.Constraint("Equal", 49, 67))
sketch1.addConstraint(Sketcher.Constraint("Equal", 67, 69))
sketch1.addConstraint(Sketcher.Constraint("Equal", 65, 71))
sketch1.addConstraint(Sketcher.Constraint("Equal", 63, 73))
sketch1.addConstraint(Sketcher.Constraint("Equal", 61, 75))
sketch1.addConstraint(Sketcher.Constraint("Equal", 75, 77))
sketch1.addConstraint(Sketcher.Constraint("Equal", 58, 78))
sketch1.addConstraint(Sketcher.Constraint("Equal", 77, 79))
sketch1.addConstraint(Sketcher.Constraint("Symmetric", 1, 3, 41, 3, -1, 1))
sketch1.addConstraint(Sketcher.Constraint("Symmetric", 3, 3, 43, 3, -1, 1))
sketch1.addConstraint(Sketcher.Constraint("Symmetric", 7, 3, 47, 3, -1, 1))
sketch1.addConstraint(Sketcher.Constraint("Symmetric", 11, 3, 51, 3, -1, 1))
sketch1.addConstraint(Sketcher.Constraint("Symmetric", 15, 3, 55, 3, -1, 1))
sketch1.addConstraint(Sketcher.Constraint("Symmetric", 17, 3, 57, 3, -1, 1))
sketch1.addConstraint(Sketcher.Constraint("Symmetric", 18, 3, 58, 3, -1, 1))
sketch1.addConstraint(Sketcher.Constraint("Symmetric", 19, 3, 59, 3, -1, 1))
sketch1.addConstraint(Sketcher.Constraint("Symmetric", 21, 3, 61, 3, -1, 1))
sketch1.addConstraint(Sketcher.Constraint("Symmetric", 23, 3, 63, 3, -1, 1))
sketch1.addConstraint(Sketcher.Constraint("Symmetric", 27, 3, 67, 3, -1, 1))
sketch1.addConstraint(Sketcher.Constraint("Symmetric", 31, 3, 71, 3, -1, 1))
sketch1.addConstraint(Sketcher.Constraint("Symmetric", 35, 3, 75, 3, -1, 1))
sketch1.addConstraint(Sketcher.Constraint("Symmetric", 37, 3, 77, 3, -1, 1))
sketch1.addConstraint(Sketcher.Constraint("Symmetric", 38, 3, 78, 3, -1, 1))
sketch1.addConstraint(Sketcher.Constraint("Symmetric", 39, 3, 79, 3, -1, 1))
sketch1.addConstraint(Sketcher.Constraint("Symmetric", 25, 3, 31, 3, -2))
sketch1.addConstraint(Sketcher.Constraint("Symmetric", 21, 3, 35, 3, -2))
sketch1.addConstraint(Sketcher.Constraint("Symmetric", 19, 3, 37, 3, -2))
sketch1.addConstraint(Sketcher.Constraint("Symmetric", 18, 3, 38, 3, -2))
sketch1.addConstraint(Sketcher.Constraint("Symmetric", 17, 3, 39, 3, -2))
sketch1.addConstraint(Sketcher.Constraint("Symmetric", 15, 3, 41, 3, -2))
sketch1.addConstraint(Sketcher.Constraint("Symmetric", 13, 3, 43, 3, -2))
sketch1.addConstraint(Sketcher.Constraint("Symmetric", 10, 2, 45, 2, -2))
sketch1.addConstraint(Sketcher.Constraint("Symmetric", 6, 2, 49, 2, -2))
sketch1.addConstraint(Sketcher.Constraint("Symmetric", 66, 2, 69, 2, -2))
sketch1.addConstraint(Sketcher.Constraint("Perpendicular", 6, 10))
sketch1.addConstraint(Sketcher.Constraint("Parallel", 10, 26))
sketch1.addConstraint(Sketcher.Constraint("Perpendicular", 26, 30))
sketch1.addConstraint(Sketcher.Constraint("Horizontal", 19, 3, 21, 3))
sketch1.addConstraint(Sketcher.Constraint("Horizontal", 3, 3, 53, 3))
sketch1.addConstraint(Sketcher.Constraint("Horizontal", 37, 3, 19, 2))
sketch1.addConstraint(Sketcher.Constraint("Horizontal", 20, 2, 21, 2))
sketch1.addConstraint(Sketcher.Constraint("Horizontal", 34, 2, 35, 2))
sketch1.addConstraint(Sketcher.Constraint("Horizontal", 77, 3, 59, 2))
sketch1.addConstraint(Sketcher.Constraint("Horizontal", 74, 2, 75, 2))
sketch1.addConstraint(Sketcher.Constraint("Vertical", 15, 3, 17, 3))
sketch1.addConstraint(Sketcher.Constraint("Vertical", 33, 3, 63, 3))
sketch1.addConstraint(Sketcher.Constraint("Vertical", 23, 3, 73, 3))
sketch1.addConstraint(Sketcher.Constraint("Vertical", 79, 3, 0, 2))
sketch1.addConstraint(Sketcher.Constraint("Vertical", 0, 2, 1, 2))
sketch1.addConstraint(Sketcher.Constraint("Vertical", 14, 2, 15, 2))
sketch1.addConstraint(Sketcher.Constraint("Vertical", 57, 3, 39, 2))
sketch1.addConstraint(Sketcher.Constraint("Vertical", 54, 2, 55, 2))
sketch1.addConstraint(Sketcher.Constraint("Equal", 76, 0))
sketch1.addConstraint(Sketcher.Constraint("Equal", 74, 2))
sketch1.addConstraint(Sketcher.Constraint("Equal", 72, 4))
sketch1.addConstraint(Sketcher.Constraint("Equal", 68, 8))
sketch1.addConstraint(Sketcher.Constraint("Equal", 10, 26))
sketch1.addConstraint(Sketcher.Constraint("Radius", 1, Q("0.02 in")))
sketch1.addConstraint(Sketcher.Constraint("Radius", 5, Q("0.04 in")))
sketch1.addConstraint(Sketcher.Constraint("Diameter", 80, Q("0.205 in")))
sketch1.addConstraint(Sketcher.Constraint("Radius", 7, Q("0.125 in")))
sketch1.addConstraint(Sketcher.Constraint("Radius", 18, Q("0.083 in")))
sketch1.addConstraint(Sketcher.Constraint("DistanceX", 1, 3, -1, 1, Q("0.5 in")))
sketch1.addConstraint(Sketcher.Constraint("DistanceY", -1, 1, 19, 3, Q("0.5 in")))
sketch1.addConstraint(Sketcher.Constraint("Radius", 3, Q("0.0435 in")))
sketch1.addConstraint(Sketcher.Constraint("DistanceY", 3, 3, -1, 1, Q("0.171 in")))
sketch1.addConstraint(Sketcher.Constraint("DistanceX", 7, 3, -1, 1, Q("0.302 in")))
sketch1.addConstraint(Sketcher.Constraint("DistanceY", -1, 1, 17, 3, Q("0.396 in")))
sketch1.addConstraint(Sketcher.Constraint("DistanceX", 18, 3, -1, 1, Q("0.417 in")))
sketch1.addConstraint(Sketcher.Constraint("DistanceY", -1, 1, 18, 3, Q("0.417 in")))
sketch1.addConstraint(Sketcher.Constraint("DistanceX", 20, 1, 20, 2, 3.217316))
sketch1.addConstraint(Sketcher.Constraint("DistanceX", 24, 2, 24, 1, 2.131394))
pad1 = body.newObject("PartDesign::Pad", "Pad")
pad1.Profile = sketch1
pad1.Length = Q("7 in")

doc.recompute()
